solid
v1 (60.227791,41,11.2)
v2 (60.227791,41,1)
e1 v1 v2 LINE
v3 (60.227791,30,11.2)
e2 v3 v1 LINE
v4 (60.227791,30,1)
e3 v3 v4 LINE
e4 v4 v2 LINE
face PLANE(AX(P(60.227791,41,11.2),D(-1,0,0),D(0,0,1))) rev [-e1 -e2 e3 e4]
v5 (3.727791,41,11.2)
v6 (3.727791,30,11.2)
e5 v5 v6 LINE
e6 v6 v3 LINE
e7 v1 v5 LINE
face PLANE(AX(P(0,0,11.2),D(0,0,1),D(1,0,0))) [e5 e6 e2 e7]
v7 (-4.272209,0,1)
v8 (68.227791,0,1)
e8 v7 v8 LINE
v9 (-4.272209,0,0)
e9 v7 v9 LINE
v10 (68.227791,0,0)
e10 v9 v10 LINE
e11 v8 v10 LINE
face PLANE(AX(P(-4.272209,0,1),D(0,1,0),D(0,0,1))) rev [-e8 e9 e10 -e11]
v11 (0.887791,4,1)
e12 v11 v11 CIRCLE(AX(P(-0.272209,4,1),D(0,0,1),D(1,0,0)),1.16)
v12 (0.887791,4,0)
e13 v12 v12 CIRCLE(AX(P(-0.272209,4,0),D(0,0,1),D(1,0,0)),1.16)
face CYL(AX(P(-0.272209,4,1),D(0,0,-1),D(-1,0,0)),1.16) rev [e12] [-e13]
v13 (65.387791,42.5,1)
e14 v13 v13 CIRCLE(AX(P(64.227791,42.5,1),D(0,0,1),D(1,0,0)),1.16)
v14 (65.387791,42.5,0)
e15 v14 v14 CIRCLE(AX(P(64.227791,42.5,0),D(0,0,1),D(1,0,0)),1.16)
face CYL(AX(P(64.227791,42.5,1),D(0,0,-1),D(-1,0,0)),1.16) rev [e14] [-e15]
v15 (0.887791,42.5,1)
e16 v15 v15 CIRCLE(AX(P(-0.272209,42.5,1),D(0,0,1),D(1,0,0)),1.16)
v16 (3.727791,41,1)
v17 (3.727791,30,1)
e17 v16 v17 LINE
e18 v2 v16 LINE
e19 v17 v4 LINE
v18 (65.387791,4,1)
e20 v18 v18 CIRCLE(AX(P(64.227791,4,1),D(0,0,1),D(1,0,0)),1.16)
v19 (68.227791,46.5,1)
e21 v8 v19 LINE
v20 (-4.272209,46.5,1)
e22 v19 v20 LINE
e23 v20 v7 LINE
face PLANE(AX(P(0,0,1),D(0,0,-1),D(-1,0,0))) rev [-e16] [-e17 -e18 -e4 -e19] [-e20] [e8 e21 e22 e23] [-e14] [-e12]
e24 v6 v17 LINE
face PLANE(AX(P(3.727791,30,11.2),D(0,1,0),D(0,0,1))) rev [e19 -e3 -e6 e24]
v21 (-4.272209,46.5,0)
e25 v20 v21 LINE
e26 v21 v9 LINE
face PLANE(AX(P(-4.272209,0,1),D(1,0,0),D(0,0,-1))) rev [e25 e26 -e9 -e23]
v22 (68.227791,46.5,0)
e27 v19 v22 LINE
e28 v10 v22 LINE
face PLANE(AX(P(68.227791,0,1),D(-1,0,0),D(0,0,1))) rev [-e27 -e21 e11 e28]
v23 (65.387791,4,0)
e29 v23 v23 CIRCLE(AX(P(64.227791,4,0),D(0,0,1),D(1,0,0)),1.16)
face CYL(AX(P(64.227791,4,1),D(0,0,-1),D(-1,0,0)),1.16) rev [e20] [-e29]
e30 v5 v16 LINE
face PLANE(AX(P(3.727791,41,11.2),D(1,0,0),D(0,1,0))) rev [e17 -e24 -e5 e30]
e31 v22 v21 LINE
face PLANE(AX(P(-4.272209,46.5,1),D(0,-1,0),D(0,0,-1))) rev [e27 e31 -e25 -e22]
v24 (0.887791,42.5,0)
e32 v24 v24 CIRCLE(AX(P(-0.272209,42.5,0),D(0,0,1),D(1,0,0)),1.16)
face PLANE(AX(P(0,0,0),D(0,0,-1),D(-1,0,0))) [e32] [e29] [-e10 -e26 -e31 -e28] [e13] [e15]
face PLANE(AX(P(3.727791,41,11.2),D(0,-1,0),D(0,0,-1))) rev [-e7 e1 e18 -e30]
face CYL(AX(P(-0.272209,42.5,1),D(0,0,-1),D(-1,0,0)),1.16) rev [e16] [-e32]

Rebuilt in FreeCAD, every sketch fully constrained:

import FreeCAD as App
import Part
import Sketcher

V = App.Vector
Q = App.Units.Quantity

doc = App.newDocument("Part")
body = doc.addObject("PartDesign::Body", "Body")

# Sketch on XY plane
sketch1 = doc.addObject("Sketcher::SketchObject", "Sketch")
body.addObject(sketch1)
sketch1.AttachmentSupport = (doc.XY_Plane, [""])
sketch1.MapMode = "FlatFace"
sketch1.addGeometry([
    Part.LineSegment(V(-4.272209, 46.5, 0), V(-4.272209, 0, 0)),  # 0
    Part.LineSegment(V(-4.272209, 0, 0), V(68.227791, 0, 0)),  # 1
    Part.LineSegment(V(68.227791, 0, 0), V(68.227791, 46.5, 0)),  # 2
    Part.LineSegment(V(68.227791, 46.5, 0), V(-4.272209, 46.5, 0)),  # 3
    Part.Circle(V(-0.272209, 4, 0), V(0, 0, 1), 1.16),  # 4
    Part.Circle(V(64.227791, 4, 0), V(0, 0, 1), 1.16),  # 5
    Part.Circle(V(-0.272209, 42.5, 0), V(0, 0, 1), 1.16),  # 6
    Part.Circle(V(64.227791, 42.5, 0), V(0, 0, 1), 1.16),  # 7
], False)
sketch1.addConstraint([
    Sketcher.Constraint("Coincident", 0, 2, 1, 1),
    Sketcher.Constraint("Coincident", 1, 2, 2, 1),
    Sketcher.Constraint("Coincident", 2, 2, 3, 1),
    Sketcher.Constraint("Coincident", 3, 2, 0, 1),
    Sketcher.Constraint("Vertical", 0),
    Sketcher.Constraint("Horizontal", 1),
    Sketcher.Constraint("Vertical", 2),
    Sketcher.Constraint("Horizontal", 3),
    Sketcher.Constraint("Equal", 4, 5),
    Sketcher.Constraint("Equal", 5, 6),
    Sketcher.Constraint("Equal", 6, 7),
    Sketcher.Constraint("PointOnObject", 0, 2, -1),
    Sketcher.Constraint("Horizontal", 4, 3, 5, 3),
    Sketcher.Constraint("Horizontal", 6, 3, 7, 3),
    Sketcher.Constraint("Vertical", 4, 3, 6, 3),
    Sketcher.Constraint("Vertical", 5, 3, 7, 3),
    Sketcher.Constraint("Diameter", 4, Q("2.32 mm")),
    Sketcher.Constraint("DistanceX", 1, 1, 1, 2, Q("72.5 mm")),
    Sketcher.Constraint("DistanceY", 0, 2, 0, 1, Q("46.5 mm")),
    Sketcher.Constraint("DistanceY", -1, 1, 4, 3, Q("4 mm")),
    Sketcher.Constraint("DistanceX", 0, 2, 4, 3, Q("4 mm")),
    Sketcher.Constraint("DistanceX", 5, 3, 1, 2, Q("4 mm")),
    Sketcher.Constraint("DistanceY", 7, 3, 2, 2, Q("4 mm")),
    Sketcher.Constraint("DistanceX", 4, 3, -1, 1, Q("0.272209 mm")),
])
pad1 = doc.addObject("PartDesign::Pad", "Pad")
body.addObject(pad1)
pad1.Profile = sketch1
pad1.Length = 1

# Sketch on XY plane
sketch2 = doc.addObject("Sketcher::SketchObject", "Sketch001")
body.addObject(sketch2)
sketch2.AttachmentSupport = (doc.XY_Plane, [""])
sketch2.MapMode = "FlatFace"
sketch2.AttachmentOffset = App.Placement(V(0, 0, 1), App.Rotation())
sketch2.addGeometry([
    Part.LineSegment(V(3.727791, 41, 0), V(3.727791, 30, 0)),
    Part.LineSegment(V(3.727791, 30, 0), V(60.227791, 30, 0)),
    Part.LineSegment(V(60.227791, 30, 0), V(60.227791, 41, 0)),
    Part.LineSegment(V(60.227791, 41, 0), V(3.727791, 41, 0)),
], False)
sketch2.addConstraint([
    Sketcher.Constraint("Coincident", 0, 2, 1, 1),
    Sketcher.Constraint("Coincident", 1, 2, 2, 1),
    Sketcher.Constraint("Coincident", 2, 2, 3, 1),
    Sketcher.Constraint("Coincident", 3, 2, 0, 1),
    Sketcher.Constraint("Vertical", 0),
    Sketcher.Constraint("Horizontal", 1),
    Sketcher.Constraint("Vertical", 2),
    Sketcher.Constraint("Horizontal", 3),
    Sketcher.Constraint("DistanceY", 0, 2, 0, 1, Q("11 mm")),
    Sketcher.Constraint("DistanceX", 1, 1, 1, 2, Q("56.5 mm")),
    Sketcher.Constraint("DistanceY", -1, 1, 0, 2, Q("30 mm")),
    Sketcher.Constraint("DistanceX", -1, 1, 0, 2, Q("3.727791 mm")),
])
pad2 = doc.addObject("PartDesign::Pad", "Pad001")
body.addObject(pad2)
pad2.Profile = sketch2
pad2.Length = 10.2

doc.recompute()
